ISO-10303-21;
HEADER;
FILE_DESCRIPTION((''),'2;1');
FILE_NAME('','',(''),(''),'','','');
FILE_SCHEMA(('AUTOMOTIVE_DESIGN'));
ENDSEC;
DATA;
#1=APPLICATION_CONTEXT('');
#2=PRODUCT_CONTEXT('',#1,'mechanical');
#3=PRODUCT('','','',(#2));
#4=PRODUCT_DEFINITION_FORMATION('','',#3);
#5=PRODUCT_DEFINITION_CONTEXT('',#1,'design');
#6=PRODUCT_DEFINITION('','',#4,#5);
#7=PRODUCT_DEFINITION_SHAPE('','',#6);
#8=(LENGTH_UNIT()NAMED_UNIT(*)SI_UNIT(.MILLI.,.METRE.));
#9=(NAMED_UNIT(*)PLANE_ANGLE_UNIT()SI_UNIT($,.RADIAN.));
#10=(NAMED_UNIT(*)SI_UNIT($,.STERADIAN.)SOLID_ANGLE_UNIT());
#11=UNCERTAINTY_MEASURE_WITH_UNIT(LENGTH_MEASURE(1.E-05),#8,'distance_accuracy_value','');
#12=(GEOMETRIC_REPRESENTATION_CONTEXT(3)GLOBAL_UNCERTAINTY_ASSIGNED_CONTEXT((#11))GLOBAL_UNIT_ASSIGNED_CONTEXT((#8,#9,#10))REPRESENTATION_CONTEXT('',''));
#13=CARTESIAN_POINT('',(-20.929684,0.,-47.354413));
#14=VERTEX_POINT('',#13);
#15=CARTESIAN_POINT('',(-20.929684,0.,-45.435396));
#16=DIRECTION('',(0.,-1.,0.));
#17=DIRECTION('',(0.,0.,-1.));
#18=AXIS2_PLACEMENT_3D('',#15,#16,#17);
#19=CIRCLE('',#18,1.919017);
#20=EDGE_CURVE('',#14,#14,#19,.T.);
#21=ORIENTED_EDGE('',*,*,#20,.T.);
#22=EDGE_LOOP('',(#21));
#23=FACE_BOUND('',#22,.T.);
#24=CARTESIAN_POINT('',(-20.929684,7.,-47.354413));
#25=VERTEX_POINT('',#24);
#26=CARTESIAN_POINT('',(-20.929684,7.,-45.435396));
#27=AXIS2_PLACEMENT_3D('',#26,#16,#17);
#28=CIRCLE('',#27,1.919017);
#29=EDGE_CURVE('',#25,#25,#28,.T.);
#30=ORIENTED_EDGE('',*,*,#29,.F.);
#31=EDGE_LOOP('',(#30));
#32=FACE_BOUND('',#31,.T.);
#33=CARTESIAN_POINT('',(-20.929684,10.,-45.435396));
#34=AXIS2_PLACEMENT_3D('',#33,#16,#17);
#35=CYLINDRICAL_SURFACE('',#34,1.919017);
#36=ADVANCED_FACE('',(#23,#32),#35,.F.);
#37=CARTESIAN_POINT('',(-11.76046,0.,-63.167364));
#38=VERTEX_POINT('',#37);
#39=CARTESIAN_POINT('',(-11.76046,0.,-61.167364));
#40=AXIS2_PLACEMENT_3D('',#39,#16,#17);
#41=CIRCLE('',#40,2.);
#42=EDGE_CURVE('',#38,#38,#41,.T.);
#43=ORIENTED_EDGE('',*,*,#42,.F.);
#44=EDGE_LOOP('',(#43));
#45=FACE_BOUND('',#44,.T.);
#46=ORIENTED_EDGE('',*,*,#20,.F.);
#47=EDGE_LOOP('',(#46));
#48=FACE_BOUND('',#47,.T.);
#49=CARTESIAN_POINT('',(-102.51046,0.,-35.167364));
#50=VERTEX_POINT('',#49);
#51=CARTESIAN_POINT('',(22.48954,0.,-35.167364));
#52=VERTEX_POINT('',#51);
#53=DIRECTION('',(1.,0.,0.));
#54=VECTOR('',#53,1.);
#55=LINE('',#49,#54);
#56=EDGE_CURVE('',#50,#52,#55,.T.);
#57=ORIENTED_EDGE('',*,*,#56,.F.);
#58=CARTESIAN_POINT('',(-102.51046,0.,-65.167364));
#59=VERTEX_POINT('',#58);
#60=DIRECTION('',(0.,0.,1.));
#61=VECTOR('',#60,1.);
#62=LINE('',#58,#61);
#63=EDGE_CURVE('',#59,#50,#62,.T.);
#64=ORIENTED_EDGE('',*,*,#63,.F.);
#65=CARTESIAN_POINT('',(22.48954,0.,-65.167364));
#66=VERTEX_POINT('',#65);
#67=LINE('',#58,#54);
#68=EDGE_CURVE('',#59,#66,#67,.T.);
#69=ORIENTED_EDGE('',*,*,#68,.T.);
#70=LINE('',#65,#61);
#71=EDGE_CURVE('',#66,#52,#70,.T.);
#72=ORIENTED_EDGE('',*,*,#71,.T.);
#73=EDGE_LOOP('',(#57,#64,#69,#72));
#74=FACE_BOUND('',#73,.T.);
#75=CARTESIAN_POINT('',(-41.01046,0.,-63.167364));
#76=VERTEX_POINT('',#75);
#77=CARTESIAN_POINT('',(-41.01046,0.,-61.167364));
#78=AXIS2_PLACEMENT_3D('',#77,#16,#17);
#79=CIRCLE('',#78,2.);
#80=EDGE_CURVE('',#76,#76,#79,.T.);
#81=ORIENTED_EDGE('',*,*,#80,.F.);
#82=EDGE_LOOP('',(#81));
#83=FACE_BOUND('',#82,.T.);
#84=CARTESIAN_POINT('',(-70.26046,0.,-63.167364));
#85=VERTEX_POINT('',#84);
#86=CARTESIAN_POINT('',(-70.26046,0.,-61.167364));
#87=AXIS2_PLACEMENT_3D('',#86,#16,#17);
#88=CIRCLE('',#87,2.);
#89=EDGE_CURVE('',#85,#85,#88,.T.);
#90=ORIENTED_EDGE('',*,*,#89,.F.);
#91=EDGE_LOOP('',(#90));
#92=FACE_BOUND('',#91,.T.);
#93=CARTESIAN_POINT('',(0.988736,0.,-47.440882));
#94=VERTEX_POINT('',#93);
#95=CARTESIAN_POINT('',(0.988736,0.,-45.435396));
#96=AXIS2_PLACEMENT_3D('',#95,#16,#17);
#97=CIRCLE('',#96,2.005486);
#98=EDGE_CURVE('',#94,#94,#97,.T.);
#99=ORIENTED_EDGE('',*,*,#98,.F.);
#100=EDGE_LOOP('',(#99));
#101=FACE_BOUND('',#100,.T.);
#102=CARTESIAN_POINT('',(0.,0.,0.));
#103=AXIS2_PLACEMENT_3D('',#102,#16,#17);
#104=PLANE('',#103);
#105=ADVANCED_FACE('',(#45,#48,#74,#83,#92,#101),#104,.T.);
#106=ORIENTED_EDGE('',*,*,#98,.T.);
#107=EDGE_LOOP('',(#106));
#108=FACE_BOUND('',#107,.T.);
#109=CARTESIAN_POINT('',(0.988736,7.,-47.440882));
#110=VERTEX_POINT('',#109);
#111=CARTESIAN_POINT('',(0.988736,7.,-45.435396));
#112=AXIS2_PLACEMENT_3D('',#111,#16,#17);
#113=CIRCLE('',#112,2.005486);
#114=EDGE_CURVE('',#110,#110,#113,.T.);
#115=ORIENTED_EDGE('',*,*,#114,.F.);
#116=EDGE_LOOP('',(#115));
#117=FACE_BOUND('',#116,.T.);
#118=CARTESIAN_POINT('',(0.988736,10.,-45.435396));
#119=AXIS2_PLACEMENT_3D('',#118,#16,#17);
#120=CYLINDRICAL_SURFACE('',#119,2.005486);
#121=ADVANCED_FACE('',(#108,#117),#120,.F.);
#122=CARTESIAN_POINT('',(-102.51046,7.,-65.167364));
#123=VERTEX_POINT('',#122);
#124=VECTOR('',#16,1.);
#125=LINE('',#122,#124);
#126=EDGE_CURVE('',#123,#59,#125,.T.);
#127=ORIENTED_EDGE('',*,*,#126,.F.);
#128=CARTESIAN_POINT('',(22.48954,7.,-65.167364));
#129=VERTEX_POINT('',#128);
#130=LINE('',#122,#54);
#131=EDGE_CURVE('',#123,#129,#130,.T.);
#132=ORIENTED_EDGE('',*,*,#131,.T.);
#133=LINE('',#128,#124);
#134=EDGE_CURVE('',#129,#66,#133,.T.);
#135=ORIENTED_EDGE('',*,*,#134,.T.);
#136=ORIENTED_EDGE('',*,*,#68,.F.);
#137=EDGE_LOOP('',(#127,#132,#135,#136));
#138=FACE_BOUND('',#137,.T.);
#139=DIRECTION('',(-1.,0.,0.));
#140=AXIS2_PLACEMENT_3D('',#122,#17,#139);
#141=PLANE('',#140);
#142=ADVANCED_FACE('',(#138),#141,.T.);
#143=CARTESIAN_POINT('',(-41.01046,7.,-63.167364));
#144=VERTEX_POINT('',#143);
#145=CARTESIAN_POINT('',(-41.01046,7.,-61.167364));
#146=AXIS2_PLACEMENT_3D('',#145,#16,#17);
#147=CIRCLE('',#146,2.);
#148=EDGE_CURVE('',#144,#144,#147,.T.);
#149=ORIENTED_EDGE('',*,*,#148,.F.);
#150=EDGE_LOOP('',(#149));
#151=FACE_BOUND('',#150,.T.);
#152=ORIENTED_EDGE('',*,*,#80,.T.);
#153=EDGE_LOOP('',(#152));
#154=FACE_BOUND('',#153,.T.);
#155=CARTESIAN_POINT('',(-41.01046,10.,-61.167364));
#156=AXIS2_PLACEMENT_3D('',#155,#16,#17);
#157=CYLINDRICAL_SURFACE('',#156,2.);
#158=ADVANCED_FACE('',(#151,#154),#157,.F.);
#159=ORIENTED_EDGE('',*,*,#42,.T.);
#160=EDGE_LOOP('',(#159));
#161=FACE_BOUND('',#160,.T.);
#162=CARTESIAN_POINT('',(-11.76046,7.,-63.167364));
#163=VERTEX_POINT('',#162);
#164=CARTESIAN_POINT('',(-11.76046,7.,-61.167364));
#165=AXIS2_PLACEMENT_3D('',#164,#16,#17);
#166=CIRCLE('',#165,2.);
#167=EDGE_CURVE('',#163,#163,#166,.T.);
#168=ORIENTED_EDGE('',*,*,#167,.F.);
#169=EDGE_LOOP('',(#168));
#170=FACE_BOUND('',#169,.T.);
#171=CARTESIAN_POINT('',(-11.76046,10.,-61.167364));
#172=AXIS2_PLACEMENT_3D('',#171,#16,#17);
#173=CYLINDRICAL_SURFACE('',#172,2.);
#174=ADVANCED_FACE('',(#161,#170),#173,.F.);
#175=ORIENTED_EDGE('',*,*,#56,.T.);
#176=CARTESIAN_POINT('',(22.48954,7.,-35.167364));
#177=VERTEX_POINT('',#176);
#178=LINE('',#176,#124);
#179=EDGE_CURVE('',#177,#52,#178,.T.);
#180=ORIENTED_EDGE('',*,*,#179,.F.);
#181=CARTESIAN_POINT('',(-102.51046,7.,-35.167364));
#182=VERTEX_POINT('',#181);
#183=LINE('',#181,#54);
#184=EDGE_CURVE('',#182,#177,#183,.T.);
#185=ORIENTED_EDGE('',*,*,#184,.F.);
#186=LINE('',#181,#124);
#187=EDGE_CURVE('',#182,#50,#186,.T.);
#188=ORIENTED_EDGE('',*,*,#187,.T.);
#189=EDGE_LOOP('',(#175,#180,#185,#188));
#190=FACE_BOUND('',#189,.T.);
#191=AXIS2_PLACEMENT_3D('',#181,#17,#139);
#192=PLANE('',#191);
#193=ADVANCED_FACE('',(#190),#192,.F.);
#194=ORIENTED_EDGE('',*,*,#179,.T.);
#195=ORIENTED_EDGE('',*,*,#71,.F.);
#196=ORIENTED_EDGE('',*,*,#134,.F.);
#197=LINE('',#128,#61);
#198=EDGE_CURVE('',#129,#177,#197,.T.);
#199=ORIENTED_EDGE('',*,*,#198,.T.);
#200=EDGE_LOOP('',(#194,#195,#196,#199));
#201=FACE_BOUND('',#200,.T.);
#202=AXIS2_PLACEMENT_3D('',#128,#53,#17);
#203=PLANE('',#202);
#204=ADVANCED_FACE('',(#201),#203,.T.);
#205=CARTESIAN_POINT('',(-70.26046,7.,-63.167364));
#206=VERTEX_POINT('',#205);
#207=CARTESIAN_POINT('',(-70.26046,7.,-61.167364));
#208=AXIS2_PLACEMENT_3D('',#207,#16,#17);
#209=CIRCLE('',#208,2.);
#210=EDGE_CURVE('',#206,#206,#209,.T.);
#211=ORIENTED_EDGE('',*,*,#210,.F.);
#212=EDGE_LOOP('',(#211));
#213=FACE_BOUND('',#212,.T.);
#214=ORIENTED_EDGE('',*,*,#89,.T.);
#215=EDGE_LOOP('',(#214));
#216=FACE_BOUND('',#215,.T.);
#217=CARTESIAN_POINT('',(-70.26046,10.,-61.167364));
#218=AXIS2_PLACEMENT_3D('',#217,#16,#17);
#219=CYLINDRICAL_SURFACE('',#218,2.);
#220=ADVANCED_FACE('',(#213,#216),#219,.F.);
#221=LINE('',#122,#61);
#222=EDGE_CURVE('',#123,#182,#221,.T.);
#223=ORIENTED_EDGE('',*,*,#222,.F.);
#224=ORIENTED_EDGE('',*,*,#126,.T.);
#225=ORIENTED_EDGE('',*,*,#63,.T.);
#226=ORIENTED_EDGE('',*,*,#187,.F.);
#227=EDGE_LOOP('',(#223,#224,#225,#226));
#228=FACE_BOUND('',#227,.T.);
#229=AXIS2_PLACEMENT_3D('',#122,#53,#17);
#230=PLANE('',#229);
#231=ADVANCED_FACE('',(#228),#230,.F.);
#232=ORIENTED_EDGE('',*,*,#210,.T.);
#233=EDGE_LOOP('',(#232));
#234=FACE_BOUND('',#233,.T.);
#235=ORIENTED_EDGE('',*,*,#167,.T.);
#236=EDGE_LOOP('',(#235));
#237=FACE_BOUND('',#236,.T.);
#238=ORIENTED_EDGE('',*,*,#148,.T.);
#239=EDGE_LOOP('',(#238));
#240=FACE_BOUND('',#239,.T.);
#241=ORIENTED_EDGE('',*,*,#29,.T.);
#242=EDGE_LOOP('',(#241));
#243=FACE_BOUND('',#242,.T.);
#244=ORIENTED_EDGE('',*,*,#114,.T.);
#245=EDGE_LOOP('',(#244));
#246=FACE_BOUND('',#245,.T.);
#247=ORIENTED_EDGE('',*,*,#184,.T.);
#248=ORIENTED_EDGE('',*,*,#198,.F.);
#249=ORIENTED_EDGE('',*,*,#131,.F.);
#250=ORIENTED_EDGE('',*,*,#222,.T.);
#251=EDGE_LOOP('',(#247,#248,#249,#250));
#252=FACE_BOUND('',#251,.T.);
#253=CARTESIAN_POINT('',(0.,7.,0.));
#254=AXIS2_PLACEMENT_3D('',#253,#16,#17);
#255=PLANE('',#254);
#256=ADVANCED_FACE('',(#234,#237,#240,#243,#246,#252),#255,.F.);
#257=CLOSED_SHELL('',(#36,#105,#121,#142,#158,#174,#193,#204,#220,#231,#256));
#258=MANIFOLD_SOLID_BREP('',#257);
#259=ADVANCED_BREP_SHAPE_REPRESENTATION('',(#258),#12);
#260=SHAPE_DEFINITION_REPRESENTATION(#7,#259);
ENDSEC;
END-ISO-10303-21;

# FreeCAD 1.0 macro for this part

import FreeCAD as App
import Part
import Sketcher

V = App.Vector


def add_polygon(sketch, points):
    """Adds a closed chain of lines whose ends are joined by coincident constraints."""
    first, n = sketch.GeometryCount, len(points)
    for a, b in zip(points, points[1:] + points[:1]):
        sketch.addGeometry(Part.LineSegment(App.Vector(*a, 0), App.Vector(*b, 0)), False)
    for i in range(n):
        sketch.addConstraint(Sketcher.Constraint("Coincident", first + i, 2, first + (i + 1) % n, 1))

doc = App.newDocument("Part")
body = doc.addObject("PartDesign::Body", "Body")

# Sketch on XZ plane
sketch1 = doc.addObject("Sketcher::SketchObject", "Sketch")
body.addObject(sketch1)
sketch1.AttachmentSupport = (doc.XZ_Plane, [""])
sketch1.MapMode = "FlatFace"
add_polygon(sketch1, [(-102.51046, -65.167364), (-102.51046, -35.167364), (22.48954, -35.167364), (22.48954, -65.167364)])  # lines 0-3
sketch1.addConstraint(Sketcher.Constraint("Vertical", 0))
sketch1.addConstraint(Sketcher.Constraint("Horizontal", 1))
sketch1.addConstraint(Sketcher.Constraint("Vertical", 2))
sketch1.addConstraint(Sketcher.Constraint("Horizontal", 3))
sketch1.addConstraint(Sketcher.Constraint("DistanceX", 1, 1, 1, 2, 125.0))
sketch1.addConstraint(Sketcher.Constraint("DistanceY", 0, 1, 0, 2, 30.0))
sketch1.addConstraint(Sketcher.Constraint("DistanceX", 0, 2, -1, 1, 102.51046))
sketch1.addConstraint(Sketcher.Constraint("DistanceY", 0, 2, -1, 1, 35.167364))
pad1 = doc.addObject("PartDesign::Pad", "Pad")
body.addObject(pad1)
pad1.Profile = sketch1
pad1.Length = 7
pad1.Reversed = True

# Sketch on XZ plane
sketch2 = doc.addObject("Sketcher::SketchObject", "Sketch001")
body.addObject(sketch2)
sketch2.AttachmentSupport = (doc.XZ_Plane, [""])
sketch2.MapMode = "FlatFace"
sketch2.addGeometry(Part.Circle(V(-70.26046, -61.167364, 0), V(0, 0, 1), 2), False)
sketch2.addGeometry(Part.Circle(V(-41.01046, -61.167364, 0), V(0, 0, 1), 2), False)
sketch2.addGeometry(Part.Circle(V(-11.76046, -61.167364, 0), V(0, 0, 1), 2), False)
sketch2.addGeometry(Part.Circle(V(-20.929684, -45.435396, 0), V(0, 0, 1), 1.919017), False)
sketch2.addGeometry(Part.Circle(V(0.988736, -45.435396, 0), V(0, 0, 1), 2.005486), False)
sketch2.addConstraint(Sketcher.Constraint("Equal", 0, 1))
sketch2.addConstraint(Sketcher.Constraint("Equal", 1, 2))
sketch2.addConstraint(Sketcher.Constraint("Horizontal", 0, 3, 1, 3))
sketch2.addConstraint(Sketcher.Constraint("Horizontal", 1, 3, 2, 3))
sketch2.addConstraint(Sketcher.Constraint("Horizontal", 3, 3, 4, 3))
sketch2.addConstraint(Sketcher.Constraint("Diameter", 0, 4.0))
sketch2.addConstraint(Sketcher.Constraint("DistanceX", 0, 3, 2, 3, 58.5))
sketch2.addConstraint(Sketcher.Constraint("DistanceX", 0, 3, 1, 3, 29.25))
sketch2.addConstraint(Sketcher.Constraint("Diameter", 3, 3.838034))
sketch2.addConstraint(Sketcher.Constraint("Diameter", 4, 4.010973))
sketch2.addConstraint(Sketcher.Constraint("DistanceX", 0, 3, -1, 1, 70.26046))
sketch2.addConstraint(Sketcher.Constraint("DistanceY", 2, 3, 3, 3, 15.731968))
sketch2.addConstraint(Sketcher.Constraint("DistanceX", 3, 3, 4, 3, 21.91842))
sketch2.addConstraint(Sketcher.Constraint("DistanceY", 0, 3, -1, 1, 61.167364))
sketch2.addConstraint(Sketcher.Constraint("DistanceX", 3, 3, -1, 1, 20.929684))
pocket1 = doc.addObject("PartDesign::Pocket", "Pocket")
body.addObject(pocket1)
pocket1.Profile = sketch2
pocket1.Length = 10

doc.recompute()
